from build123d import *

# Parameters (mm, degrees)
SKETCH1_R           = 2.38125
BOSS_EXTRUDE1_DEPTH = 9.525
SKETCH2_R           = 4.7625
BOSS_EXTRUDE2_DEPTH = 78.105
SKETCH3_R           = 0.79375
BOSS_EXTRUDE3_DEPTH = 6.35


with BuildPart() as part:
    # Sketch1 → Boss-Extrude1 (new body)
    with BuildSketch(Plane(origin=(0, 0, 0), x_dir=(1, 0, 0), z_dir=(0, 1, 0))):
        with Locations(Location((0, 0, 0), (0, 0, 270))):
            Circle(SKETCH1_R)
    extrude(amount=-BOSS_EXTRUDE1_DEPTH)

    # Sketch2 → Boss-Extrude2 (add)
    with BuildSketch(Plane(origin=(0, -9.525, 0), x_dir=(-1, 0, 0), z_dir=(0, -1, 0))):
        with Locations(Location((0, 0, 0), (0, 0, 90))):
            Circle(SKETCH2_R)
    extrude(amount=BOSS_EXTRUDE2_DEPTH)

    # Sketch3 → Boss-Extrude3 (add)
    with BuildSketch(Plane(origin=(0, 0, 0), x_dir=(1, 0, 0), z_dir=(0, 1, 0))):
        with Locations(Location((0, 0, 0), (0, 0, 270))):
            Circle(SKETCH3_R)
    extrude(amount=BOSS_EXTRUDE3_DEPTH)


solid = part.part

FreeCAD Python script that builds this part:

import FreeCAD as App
import Part
import Sketcher
Q = App.Units.Quantity

doc = App.newDocument("Part")
body = doc.addObject("PartDesign::Body", "Body")

sketch1 = body.newObject("Sketcher::SketchObject", "Sketch")
sketch1.AttachmentSupport = (doc.getObject("XZ_Plane"), [""])
sketch1.MapMode = "FlatFace"
sketch1.addGeometry(Part.Circle(App.Vector(0, 0, 0), App.Vector(0, 0, 1), 2.4), False)
sketch1.addConstraint(Sketcher.Constraint("Coincident", 0, 3, -1, 1))
sketch1.addConstraint(Sketcher.Constraint("Diameter", 0, Q("0.1875 in")))
pad1 = body.newObject("PartDesign::Pad", "Pad")
pad1.Profile = sketch1
pad1.Length = Q("0.375 in")

sketch2 = body.newObject("Sketcher::SketchObject", "Sketch001")
sketch2.AttachmentSupport = (doc.getObject("XZ_Plane"), [""])
sketch2.MapMode = "FlatFace"
sketch2.AttachmentOffset = App.Placement(App.Vector(0, 0, 0.375 * 25.4), App.Rotation())
sketch2.addGeometry(Part.Circle(App.Vector(0, 0, 0), App.Vector(0, 0, 1), 4.8), False)
sketch2.addConstraint(Sketcher.Constraint("Coincident", 0, 3, -1, 1))
sketch2.addConstraint(Sketcher.Constraint("Diameter", 0, Q("0.375 in")))
pad2 = body.newObject("PartDesign::Pad", "Pad001")
pad2.Profile = sketch2
pad2.Length = Q("3.075 in")

sketch3 = body.newObject("Sketcher::SketchObject", "Sketch002")
sketch3.AttachmentSupport = (doc.getObject("XZ_Plane"), [""])
sketch3.MapMode = "FlatFace"
sketch3.addGeometry(Part.Circle(App.Vector(0, 0, 0), App.Vector(0, 0, 1), 0.8), False)
sketch3.addConstraint(Sketcher.Constraint("Coincident", 0, 3, -1, 1))
sketch3.addConstraint(Sketcher.Constraint("Diameter", 0, Q("0.0625 in")))
pad3 = body.newObject("PartDesign::Pad", "Pad002")
pad3.Profile = sketch3
pad3.Length = Q("0.25 in")
pad3.Reversed = True

doc.recompute()
